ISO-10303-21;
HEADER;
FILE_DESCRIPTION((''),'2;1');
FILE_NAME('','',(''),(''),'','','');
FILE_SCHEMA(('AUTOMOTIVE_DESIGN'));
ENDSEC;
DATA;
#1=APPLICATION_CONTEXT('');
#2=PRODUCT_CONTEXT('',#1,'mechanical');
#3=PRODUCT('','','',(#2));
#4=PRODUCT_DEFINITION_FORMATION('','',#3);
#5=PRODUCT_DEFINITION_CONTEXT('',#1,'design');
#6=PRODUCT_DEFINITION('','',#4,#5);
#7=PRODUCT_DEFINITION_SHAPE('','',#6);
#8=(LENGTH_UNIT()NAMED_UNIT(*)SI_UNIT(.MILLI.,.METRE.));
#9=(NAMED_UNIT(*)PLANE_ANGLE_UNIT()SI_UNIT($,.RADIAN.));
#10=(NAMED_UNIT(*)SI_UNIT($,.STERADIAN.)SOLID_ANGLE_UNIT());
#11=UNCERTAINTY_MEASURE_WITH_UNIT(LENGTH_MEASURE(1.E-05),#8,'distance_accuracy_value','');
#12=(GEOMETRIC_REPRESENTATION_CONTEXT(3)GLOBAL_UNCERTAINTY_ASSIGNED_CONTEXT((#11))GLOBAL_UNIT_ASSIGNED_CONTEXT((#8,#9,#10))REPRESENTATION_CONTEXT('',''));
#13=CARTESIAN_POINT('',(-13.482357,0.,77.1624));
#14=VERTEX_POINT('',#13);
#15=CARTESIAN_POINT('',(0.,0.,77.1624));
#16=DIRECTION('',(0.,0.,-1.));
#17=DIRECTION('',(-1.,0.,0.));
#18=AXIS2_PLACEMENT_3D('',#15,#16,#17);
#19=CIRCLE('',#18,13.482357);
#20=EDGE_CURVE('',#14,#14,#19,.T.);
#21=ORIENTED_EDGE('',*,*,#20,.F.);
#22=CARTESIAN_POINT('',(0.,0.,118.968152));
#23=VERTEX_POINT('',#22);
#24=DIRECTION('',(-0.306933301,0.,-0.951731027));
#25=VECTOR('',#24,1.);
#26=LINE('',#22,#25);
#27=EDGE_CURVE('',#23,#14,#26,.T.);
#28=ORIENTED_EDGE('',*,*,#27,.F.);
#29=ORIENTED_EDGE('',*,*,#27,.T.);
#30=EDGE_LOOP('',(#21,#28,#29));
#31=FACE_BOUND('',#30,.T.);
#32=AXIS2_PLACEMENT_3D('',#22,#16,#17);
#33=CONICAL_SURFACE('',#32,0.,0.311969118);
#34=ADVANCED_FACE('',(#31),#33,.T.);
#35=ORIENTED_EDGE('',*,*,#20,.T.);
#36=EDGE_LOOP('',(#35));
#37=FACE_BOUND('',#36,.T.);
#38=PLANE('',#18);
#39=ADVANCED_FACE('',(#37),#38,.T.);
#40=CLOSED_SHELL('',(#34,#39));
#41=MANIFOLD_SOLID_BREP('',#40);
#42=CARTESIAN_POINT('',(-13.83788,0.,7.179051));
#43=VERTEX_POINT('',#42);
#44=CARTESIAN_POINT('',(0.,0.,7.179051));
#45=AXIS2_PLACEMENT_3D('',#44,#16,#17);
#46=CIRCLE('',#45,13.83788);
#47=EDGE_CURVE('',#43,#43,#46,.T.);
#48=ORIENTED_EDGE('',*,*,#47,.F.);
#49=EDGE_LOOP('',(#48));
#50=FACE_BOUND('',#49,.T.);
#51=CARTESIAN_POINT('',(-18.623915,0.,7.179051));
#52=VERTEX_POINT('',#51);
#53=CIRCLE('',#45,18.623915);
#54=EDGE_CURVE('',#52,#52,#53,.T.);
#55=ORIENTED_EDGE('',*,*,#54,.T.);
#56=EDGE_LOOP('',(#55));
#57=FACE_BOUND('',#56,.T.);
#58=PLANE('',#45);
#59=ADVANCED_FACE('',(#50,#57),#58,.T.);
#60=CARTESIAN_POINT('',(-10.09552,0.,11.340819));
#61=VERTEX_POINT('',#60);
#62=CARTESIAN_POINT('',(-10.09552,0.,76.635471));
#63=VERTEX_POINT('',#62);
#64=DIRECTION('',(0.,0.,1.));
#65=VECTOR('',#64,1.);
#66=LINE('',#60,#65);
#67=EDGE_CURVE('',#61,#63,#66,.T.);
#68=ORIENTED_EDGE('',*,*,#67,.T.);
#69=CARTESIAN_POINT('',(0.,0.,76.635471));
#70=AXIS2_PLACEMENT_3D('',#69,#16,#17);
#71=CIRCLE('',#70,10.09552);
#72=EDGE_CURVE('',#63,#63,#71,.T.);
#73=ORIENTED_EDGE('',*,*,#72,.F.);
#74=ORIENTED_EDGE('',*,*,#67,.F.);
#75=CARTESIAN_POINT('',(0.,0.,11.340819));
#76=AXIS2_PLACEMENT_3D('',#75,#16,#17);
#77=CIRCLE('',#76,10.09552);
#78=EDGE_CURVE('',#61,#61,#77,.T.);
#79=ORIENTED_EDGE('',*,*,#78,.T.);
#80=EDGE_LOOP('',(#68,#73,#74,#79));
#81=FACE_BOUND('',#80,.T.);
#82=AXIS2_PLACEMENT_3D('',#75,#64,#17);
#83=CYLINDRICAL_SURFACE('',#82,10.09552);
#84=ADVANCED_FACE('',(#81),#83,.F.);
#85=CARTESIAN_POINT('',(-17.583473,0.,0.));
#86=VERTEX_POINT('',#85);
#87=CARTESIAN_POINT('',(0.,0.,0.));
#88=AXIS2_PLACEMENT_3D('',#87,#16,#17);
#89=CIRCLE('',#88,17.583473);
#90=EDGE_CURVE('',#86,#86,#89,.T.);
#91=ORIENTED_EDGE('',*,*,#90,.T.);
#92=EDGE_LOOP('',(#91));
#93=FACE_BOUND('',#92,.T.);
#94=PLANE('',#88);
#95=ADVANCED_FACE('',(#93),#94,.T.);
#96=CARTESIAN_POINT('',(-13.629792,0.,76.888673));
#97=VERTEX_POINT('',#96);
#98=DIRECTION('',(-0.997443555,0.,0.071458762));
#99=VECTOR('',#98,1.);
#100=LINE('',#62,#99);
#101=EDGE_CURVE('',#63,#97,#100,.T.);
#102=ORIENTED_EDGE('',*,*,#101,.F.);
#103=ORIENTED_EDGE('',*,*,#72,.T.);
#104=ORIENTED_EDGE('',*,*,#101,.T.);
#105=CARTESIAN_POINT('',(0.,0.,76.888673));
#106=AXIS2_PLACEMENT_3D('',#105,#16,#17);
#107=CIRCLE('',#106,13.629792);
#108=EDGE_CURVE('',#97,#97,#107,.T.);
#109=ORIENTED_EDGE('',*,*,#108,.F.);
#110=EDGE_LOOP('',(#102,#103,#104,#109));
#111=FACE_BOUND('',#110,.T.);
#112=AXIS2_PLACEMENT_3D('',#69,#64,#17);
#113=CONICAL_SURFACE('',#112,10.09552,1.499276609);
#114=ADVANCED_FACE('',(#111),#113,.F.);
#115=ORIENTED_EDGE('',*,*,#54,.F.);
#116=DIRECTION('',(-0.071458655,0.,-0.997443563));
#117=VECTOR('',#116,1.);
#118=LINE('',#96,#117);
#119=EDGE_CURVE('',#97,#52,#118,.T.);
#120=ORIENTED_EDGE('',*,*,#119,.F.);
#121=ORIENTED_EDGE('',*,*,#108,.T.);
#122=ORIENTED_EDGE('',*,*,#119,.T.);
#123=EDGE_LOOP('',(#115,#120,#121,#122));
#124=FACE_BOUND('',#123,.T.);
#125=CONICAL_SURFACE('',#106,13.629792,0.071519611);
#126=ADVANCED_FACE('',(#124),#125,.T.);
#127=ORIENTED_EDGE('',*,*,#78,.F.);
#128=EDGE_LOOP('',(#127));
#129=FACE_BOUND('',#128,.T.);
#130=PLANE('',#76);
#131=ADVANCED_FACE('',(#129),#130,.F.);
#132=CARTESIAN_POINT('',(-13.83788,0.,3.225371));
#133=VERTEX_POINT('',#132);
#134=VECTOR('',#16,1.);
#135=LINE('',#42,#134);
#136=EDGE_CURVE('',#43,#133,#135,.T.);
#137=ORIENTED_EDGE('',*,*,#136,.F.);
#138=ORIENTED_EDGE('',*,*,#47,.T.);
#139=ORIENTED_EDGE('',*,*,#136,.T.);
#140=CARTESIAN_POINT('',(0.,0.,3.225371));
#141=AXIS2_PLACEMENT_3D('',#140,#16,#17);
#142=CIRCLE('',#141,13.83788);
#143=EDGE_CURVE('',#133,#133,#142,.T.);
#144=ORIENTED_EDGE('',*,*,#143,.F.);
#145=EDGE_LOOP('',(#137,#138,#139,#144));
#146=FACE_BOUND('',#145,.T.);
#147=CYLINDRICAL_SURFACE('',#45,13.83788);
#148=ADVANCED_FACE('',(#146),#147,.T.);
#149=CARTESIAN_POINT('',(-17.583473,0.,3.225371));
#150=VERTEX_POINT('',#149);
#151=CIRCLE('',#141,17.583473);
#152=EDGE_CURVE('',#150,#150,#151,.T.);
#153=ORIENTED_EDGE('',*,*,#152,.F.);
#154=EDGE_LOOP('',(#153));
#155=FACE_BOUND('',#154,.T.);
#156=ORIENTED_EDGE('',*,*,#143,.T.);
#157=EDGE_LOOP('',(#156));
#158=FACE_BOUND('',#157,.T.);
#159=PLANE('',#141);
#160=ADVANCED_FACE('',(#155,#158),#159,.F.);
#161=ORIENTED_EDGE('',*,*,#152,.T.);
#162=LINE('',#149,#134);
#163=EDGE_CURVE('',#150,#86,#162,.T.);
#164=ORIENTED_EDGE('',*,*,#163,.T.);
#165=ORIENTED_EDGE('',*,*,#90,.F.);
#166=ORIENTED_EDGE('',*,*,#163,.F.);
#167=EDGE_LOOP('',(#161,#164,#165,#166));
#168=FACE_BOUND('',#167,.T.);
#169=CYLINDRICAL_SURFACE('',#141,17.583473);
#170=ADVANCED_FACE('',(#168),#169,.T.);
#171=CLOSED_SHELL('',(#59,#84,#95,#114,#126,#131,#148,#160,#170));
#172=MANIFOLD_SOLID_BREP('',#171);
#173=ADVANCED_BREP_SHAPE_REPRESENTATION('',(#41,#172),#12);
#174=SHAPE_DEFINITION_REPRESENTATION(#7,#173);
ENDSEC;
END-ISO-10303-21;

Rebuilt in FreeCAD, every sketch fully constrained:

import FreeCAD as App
import Part
import Sketcher

V = App.Vector

doc = App.newDocument("Part")
body = doc.addObject("PartDesign::Body", "Body")

sketch1 = doc.addObject("Sketcher::SketchObject", "Sketch")
body.addObject(sketch1)
sketch1.AttachmentSupport = (doc.XZ_Plane, [""])
sketch1.MapMode = "FlatFace"
sketch1.addGeometry([
    Part.LineSegment(V(-17.583473, 0, 0), V(0, 0, 0)),
    Part.LineSegment(V(0, 0, 0), V(0, 11.340819, 0)),
    Part.LineSegment(V(0, 11.340819, 0), V(-10.09552, 11.340819, 0)),
    Part.LineSegment(V(-10.09552, 11.340819, 0), V(-10.09552, 76.635471, 0)),
    Part.LineSegment(V(-10.09552, 76.635471, 0), V(-13.629792, 76.888673, 0)),
    Part.LineSegment(V(-13.629792, 76.888673, 0), V(-18.623915, 7.179051, 0)),
    Part.LineSegment(V(-18.623915, 7.179051, 0), V(-13.83788, 7.179051, 0)),
    Part.LineSegment(V(-13.83788, 7.179051, 0), V(-13.83788, 3.225371, 0)),
    Part.LineSegment(V(-13.83788, 3.225371, 0), V(-17.583473, 3.225371, 0)),
    Part.LineSegment(V(-17.583473, 3.225371, 0), V(-17.583473, 0, 0)),
], False)
sketch1.addConstraint([
    Sketcher.Constraint("Coincident", 0, 2, 1, 1),
    Sketcher.Constraint("Coincident", 1, 2, 2, 1),
    Sketcher.Constraint("Coincident", 2, 2, 3, 1),
    Sketcher.Constraint("Coincident", 3, 2, 4, 1),
    Sketcher.Constraint("Coincident", 4, 2, 5, 1),
    Sketcher.Constraint("Coincident", 5, 2, 6, 1),
    Sketcher.Constraint("Coincident", 6, 2, 7, 1),
    Sketcher.Constraint("Coincident", 7, 2, 8, 1),
    Sketcher.Constraint("Coincident", 8, 2, 9, 1),
    Sketcher.Constraint("Coincident", 9, 2, 0, 1),
    Sketcher.Constraint("Horizontal", 0),
    Sketcher.Constraint("Vertical", 1),
    Sketcher.Constraint("Horizontal", 2),
    Sketcher.Constraint("Vertical", 3),
    Sketcher.Constraint("Horizontal", 6),
    Sketcher.Constraint("Vertical", 7),
    Sketcher.Constraint("Horizontal", 8),
    Sketcher.Constraint("Vertical", 9),
    Sketcher.Constraint("Coincident", 0, 2, -1, 1),
    Sketcher.Constraint("Perpendicular", 4, 5),
    Sketcher.Constraint("DistanceX", 2, 2, 2, 1, 10.09552),
    Sketcher.Constraint("DistanceY", 1, 1, 1, 2, 11.340819),
    Sketcher.Constraint("DistanceY", 3, 1, 3, 2, 65.294652),
    Sketcher.Constraint("DistanceY", 7, 2, 7, 1, 3.95368),
    Sketcher.Constraint("DistanceY", 9, 2, 9, 1, 3.225371),
    Sketcher.Constraint("Distance", 4, 3.54333),
    Sketcher.Constraint("DistanceX", 0, 1, 0, 2, 17.583473),
    Sketcher.Constraint("DistanceX", 6, 1, 6, 2, 4.786035),
    Sketcher.Constraint("DistanceX", 8, 2, 8, 1, 3.745593),
])
revolution = doc.addObject("PartDesign::Revolution", "Revolution")
body.addObject(revolution)
revolution.Profile = sketch1
revolution.ReferenceAxis = (sketch1, ["V_Axis"])
revolution.Angle = 360
body2 = doc.addObject("PartDesign::Body", "Body001")

sketch2 = doc.addObject("Sketcher::SketchObject", "Sketch001")
body2.addObject(sketch2)
sketch2.AttachmentSupport = (doc.getObject("XZ_Plane001"), [""])
sketch2.MapMode = "FlatFace"
sketch2.addGeometry([
    Part.LineSegment(V(0, 118.968152, 0), V(-13.482357, 77.1624, 0)),
    Part.LineSegment(V(-13.482357, 77.1624, 0), V(0, 77.1624, 0)),
    Part.LineSegment(V(0, 77.1624, 0), V(0, 118.968152, 0)),
], False)
sketch2.addConstraint([
    Sketcher.Constraint("Coincident", 0, 2, 1, 1),
    Sketcher.Constraint("Coincident", 1, 2, 2, 1),
    Sketcher.Constraint("Coincident", 2, 2, 0, 1),
    Sketcher.Constraint("Horizontal", 1),
    Sketcher.Constraint("Vertical", 2),
    Sketcher.Constraint("PointOnObject", 1, 2, -2),
    Sketcher.Constraint("DistanceY", 2, 1, 2, 2, 41.805752),
    Sketcher.Constraint("DistanceY", -1, 1, 0, 2, 77.1624),
    Sketcher.Constraint("DistanceX", 1, 1, 1, 2, 13.482357),
])
revolution2 = doc.addObject("PartDesign::Revolution", "Revolution001")
body2.addObject(revolution2)
revolution2.Profile = sketch2
revolution2.ReferenceAxis = (sketch2, ["V_Axis"])
revolution2.Angle = 360

doc.recompute()
